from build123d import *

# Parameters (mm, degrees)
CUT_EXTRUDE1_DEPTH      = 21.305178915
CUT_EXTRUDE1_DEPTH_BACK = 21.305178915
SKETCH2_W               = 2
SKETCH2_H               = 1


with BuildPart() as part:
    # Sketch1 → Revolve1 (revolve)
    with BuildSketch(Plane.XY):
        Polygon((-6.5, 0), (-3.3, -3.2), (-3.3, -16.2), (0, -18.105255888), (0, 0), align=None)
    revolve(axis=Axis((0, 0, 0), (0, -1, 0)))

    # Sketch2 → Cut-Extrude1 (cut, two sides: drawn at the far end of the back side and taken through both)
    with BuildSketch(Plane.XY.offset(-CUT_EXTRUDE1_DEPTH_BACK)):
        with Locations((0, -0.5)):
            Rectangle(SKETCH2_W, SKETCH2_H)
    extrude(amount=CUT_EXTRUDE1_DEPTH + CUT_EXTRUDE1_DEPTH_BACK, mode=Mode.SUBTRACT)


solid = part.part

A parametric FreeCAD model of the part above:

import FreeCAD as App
import Part
import Sketcher

V = App.Vector
Q = App.Units.Quantity

doc = App.newDocument("Part")
body = doc.addObject("PartDesign::Body", "Body")

# Sketch on XY plane
sketch1 = doc.addObject("Sketcher::SketchObject", "Sketch")
body.addObject(sketch1)
sketch1.AttachmentSupport = (doc.XY_Plane, [""])
sketch1.MapMode = "FlatFace"
sketch1.addGeometry([
    Part.LineSegment(V(-6.5, 0, 0), V(-3.3, -3.2, 0)),  # 0
    Part.LineSegment(V(-3.3, -3.2, 0), V(-3.3, -16.2, 0)),  # 1
    Part.LineSegment(V(-3.3, -16.2, 0), V(0, -18.105256, 0)),  # 2
    Part.LineSegment(V(0, -18.105256, 0), V(0, 0, 0)),  # 3
    Part.LineSegment(V(0, 0, 0), V(-6.5, 0, 0)),  # 4
], False)
sketch1.addConstraint([
    Sketcher.Constraint("Coincident", 0, 2, 1, 1),
    Sketcher.Constraint("Coincident", 1, 2, 2, 1),
    Sketcher.Constraint("Coincident", 2, 2, 3, 1),
    Sketcher.Constraint("Coincident", 3, 2, 4, 1),
    Sketcher.Constraint("Coincident", 4, 2, 0, 1),
    Sketcher.Constraint("Vertical", 1),
    Sketcher.Constraint("Vertical", 3),
    Sketcher.Constraint("Horizontal", 4),
    Sketcher.Constraint("Coincident", 3, 2, -1, 1),
    Sketcher.Constraint("DistanceY", 1, 2, 1, 1, Q("13 mm")),
    Sketcher.Constraint("Angle", 0, Q("-45 deg")),
    Sketcher.Constraint("Angle", 2, Q("-30 deg")),
    Sketcher.Constraint("DistanceX", 4, 2, 4, 1, Q("6.5 mm")),
    Sketcher.Constraint("DistanceX", 0, 2, -1, 1, Q("3.3 mm")),
])
revolution = doc.addObject("PartDesign::Revolution", "Revolution")
body.addObject(revolution)
revolution.Profile = sketch1
revolution.ReferenceAxis = (sketch1, ["V_Axis"])
revolution.Angle = 360

# Sketch on XY plane
sketch2 = doc.addObject("Sketcher::SketchObject", "Sketch001")
body.addObject(sketch2)
sketch2.AttachmentSupport = (doc.XY_Plane, [""])
sketch2.MapMode = "FlatFace"
sketch2.addGeometry([
    Part.LineSegment(V(-1, 0, 0), V(-1, -1, 0)),
    Part.LineSegment(V(-1, -1, 0), V(1, -1, 0)),
    Part.LineSegment(V(1, -1, 0), V(1, 0, 0)),
    Part.LineSegment(V(1, 0, 0), V(-1, 0, 0)),
], False)
sketch2.addConstraint([
    Sketcher.Constraint("Coincident", 0, 2, 1, 1),
    Sketcher.Constraint("Coincident", 1, 2, 2, 1),
    Sketcher.Constraint("Coincident", 2, 2, 3, 1),
    Sketcher.Constraint("Coincident", 3, 2, 0, 1),
    Sketcher.Constraint("Vertical", 0),
    Sketcher.Constraint("Horizontal", 1),
    Sketcher.Constraint("Vertical", 2),
    Sketcher.Constraint("Horizontal", 3),
    Sketcher.Constraint("Symmetric", 2, 2, 3, 2, -1, 1),
    Sketcher.Constraint("DistanceX", 1, 1, 1, 2, Q("2 mm")),
    Sketcher.Constraint("DistanceY", 0, 2, 0, 1, Q("1 mm")),
])
pocket1 = doc.addObject("PartDesign::Pocket", "Pocket")
body.addObject(pocket1)
pocket1.Profile = sketch2
pocket1.Type = "ThroughAll"
pocket1.Midplane = True

doc.recompute()
